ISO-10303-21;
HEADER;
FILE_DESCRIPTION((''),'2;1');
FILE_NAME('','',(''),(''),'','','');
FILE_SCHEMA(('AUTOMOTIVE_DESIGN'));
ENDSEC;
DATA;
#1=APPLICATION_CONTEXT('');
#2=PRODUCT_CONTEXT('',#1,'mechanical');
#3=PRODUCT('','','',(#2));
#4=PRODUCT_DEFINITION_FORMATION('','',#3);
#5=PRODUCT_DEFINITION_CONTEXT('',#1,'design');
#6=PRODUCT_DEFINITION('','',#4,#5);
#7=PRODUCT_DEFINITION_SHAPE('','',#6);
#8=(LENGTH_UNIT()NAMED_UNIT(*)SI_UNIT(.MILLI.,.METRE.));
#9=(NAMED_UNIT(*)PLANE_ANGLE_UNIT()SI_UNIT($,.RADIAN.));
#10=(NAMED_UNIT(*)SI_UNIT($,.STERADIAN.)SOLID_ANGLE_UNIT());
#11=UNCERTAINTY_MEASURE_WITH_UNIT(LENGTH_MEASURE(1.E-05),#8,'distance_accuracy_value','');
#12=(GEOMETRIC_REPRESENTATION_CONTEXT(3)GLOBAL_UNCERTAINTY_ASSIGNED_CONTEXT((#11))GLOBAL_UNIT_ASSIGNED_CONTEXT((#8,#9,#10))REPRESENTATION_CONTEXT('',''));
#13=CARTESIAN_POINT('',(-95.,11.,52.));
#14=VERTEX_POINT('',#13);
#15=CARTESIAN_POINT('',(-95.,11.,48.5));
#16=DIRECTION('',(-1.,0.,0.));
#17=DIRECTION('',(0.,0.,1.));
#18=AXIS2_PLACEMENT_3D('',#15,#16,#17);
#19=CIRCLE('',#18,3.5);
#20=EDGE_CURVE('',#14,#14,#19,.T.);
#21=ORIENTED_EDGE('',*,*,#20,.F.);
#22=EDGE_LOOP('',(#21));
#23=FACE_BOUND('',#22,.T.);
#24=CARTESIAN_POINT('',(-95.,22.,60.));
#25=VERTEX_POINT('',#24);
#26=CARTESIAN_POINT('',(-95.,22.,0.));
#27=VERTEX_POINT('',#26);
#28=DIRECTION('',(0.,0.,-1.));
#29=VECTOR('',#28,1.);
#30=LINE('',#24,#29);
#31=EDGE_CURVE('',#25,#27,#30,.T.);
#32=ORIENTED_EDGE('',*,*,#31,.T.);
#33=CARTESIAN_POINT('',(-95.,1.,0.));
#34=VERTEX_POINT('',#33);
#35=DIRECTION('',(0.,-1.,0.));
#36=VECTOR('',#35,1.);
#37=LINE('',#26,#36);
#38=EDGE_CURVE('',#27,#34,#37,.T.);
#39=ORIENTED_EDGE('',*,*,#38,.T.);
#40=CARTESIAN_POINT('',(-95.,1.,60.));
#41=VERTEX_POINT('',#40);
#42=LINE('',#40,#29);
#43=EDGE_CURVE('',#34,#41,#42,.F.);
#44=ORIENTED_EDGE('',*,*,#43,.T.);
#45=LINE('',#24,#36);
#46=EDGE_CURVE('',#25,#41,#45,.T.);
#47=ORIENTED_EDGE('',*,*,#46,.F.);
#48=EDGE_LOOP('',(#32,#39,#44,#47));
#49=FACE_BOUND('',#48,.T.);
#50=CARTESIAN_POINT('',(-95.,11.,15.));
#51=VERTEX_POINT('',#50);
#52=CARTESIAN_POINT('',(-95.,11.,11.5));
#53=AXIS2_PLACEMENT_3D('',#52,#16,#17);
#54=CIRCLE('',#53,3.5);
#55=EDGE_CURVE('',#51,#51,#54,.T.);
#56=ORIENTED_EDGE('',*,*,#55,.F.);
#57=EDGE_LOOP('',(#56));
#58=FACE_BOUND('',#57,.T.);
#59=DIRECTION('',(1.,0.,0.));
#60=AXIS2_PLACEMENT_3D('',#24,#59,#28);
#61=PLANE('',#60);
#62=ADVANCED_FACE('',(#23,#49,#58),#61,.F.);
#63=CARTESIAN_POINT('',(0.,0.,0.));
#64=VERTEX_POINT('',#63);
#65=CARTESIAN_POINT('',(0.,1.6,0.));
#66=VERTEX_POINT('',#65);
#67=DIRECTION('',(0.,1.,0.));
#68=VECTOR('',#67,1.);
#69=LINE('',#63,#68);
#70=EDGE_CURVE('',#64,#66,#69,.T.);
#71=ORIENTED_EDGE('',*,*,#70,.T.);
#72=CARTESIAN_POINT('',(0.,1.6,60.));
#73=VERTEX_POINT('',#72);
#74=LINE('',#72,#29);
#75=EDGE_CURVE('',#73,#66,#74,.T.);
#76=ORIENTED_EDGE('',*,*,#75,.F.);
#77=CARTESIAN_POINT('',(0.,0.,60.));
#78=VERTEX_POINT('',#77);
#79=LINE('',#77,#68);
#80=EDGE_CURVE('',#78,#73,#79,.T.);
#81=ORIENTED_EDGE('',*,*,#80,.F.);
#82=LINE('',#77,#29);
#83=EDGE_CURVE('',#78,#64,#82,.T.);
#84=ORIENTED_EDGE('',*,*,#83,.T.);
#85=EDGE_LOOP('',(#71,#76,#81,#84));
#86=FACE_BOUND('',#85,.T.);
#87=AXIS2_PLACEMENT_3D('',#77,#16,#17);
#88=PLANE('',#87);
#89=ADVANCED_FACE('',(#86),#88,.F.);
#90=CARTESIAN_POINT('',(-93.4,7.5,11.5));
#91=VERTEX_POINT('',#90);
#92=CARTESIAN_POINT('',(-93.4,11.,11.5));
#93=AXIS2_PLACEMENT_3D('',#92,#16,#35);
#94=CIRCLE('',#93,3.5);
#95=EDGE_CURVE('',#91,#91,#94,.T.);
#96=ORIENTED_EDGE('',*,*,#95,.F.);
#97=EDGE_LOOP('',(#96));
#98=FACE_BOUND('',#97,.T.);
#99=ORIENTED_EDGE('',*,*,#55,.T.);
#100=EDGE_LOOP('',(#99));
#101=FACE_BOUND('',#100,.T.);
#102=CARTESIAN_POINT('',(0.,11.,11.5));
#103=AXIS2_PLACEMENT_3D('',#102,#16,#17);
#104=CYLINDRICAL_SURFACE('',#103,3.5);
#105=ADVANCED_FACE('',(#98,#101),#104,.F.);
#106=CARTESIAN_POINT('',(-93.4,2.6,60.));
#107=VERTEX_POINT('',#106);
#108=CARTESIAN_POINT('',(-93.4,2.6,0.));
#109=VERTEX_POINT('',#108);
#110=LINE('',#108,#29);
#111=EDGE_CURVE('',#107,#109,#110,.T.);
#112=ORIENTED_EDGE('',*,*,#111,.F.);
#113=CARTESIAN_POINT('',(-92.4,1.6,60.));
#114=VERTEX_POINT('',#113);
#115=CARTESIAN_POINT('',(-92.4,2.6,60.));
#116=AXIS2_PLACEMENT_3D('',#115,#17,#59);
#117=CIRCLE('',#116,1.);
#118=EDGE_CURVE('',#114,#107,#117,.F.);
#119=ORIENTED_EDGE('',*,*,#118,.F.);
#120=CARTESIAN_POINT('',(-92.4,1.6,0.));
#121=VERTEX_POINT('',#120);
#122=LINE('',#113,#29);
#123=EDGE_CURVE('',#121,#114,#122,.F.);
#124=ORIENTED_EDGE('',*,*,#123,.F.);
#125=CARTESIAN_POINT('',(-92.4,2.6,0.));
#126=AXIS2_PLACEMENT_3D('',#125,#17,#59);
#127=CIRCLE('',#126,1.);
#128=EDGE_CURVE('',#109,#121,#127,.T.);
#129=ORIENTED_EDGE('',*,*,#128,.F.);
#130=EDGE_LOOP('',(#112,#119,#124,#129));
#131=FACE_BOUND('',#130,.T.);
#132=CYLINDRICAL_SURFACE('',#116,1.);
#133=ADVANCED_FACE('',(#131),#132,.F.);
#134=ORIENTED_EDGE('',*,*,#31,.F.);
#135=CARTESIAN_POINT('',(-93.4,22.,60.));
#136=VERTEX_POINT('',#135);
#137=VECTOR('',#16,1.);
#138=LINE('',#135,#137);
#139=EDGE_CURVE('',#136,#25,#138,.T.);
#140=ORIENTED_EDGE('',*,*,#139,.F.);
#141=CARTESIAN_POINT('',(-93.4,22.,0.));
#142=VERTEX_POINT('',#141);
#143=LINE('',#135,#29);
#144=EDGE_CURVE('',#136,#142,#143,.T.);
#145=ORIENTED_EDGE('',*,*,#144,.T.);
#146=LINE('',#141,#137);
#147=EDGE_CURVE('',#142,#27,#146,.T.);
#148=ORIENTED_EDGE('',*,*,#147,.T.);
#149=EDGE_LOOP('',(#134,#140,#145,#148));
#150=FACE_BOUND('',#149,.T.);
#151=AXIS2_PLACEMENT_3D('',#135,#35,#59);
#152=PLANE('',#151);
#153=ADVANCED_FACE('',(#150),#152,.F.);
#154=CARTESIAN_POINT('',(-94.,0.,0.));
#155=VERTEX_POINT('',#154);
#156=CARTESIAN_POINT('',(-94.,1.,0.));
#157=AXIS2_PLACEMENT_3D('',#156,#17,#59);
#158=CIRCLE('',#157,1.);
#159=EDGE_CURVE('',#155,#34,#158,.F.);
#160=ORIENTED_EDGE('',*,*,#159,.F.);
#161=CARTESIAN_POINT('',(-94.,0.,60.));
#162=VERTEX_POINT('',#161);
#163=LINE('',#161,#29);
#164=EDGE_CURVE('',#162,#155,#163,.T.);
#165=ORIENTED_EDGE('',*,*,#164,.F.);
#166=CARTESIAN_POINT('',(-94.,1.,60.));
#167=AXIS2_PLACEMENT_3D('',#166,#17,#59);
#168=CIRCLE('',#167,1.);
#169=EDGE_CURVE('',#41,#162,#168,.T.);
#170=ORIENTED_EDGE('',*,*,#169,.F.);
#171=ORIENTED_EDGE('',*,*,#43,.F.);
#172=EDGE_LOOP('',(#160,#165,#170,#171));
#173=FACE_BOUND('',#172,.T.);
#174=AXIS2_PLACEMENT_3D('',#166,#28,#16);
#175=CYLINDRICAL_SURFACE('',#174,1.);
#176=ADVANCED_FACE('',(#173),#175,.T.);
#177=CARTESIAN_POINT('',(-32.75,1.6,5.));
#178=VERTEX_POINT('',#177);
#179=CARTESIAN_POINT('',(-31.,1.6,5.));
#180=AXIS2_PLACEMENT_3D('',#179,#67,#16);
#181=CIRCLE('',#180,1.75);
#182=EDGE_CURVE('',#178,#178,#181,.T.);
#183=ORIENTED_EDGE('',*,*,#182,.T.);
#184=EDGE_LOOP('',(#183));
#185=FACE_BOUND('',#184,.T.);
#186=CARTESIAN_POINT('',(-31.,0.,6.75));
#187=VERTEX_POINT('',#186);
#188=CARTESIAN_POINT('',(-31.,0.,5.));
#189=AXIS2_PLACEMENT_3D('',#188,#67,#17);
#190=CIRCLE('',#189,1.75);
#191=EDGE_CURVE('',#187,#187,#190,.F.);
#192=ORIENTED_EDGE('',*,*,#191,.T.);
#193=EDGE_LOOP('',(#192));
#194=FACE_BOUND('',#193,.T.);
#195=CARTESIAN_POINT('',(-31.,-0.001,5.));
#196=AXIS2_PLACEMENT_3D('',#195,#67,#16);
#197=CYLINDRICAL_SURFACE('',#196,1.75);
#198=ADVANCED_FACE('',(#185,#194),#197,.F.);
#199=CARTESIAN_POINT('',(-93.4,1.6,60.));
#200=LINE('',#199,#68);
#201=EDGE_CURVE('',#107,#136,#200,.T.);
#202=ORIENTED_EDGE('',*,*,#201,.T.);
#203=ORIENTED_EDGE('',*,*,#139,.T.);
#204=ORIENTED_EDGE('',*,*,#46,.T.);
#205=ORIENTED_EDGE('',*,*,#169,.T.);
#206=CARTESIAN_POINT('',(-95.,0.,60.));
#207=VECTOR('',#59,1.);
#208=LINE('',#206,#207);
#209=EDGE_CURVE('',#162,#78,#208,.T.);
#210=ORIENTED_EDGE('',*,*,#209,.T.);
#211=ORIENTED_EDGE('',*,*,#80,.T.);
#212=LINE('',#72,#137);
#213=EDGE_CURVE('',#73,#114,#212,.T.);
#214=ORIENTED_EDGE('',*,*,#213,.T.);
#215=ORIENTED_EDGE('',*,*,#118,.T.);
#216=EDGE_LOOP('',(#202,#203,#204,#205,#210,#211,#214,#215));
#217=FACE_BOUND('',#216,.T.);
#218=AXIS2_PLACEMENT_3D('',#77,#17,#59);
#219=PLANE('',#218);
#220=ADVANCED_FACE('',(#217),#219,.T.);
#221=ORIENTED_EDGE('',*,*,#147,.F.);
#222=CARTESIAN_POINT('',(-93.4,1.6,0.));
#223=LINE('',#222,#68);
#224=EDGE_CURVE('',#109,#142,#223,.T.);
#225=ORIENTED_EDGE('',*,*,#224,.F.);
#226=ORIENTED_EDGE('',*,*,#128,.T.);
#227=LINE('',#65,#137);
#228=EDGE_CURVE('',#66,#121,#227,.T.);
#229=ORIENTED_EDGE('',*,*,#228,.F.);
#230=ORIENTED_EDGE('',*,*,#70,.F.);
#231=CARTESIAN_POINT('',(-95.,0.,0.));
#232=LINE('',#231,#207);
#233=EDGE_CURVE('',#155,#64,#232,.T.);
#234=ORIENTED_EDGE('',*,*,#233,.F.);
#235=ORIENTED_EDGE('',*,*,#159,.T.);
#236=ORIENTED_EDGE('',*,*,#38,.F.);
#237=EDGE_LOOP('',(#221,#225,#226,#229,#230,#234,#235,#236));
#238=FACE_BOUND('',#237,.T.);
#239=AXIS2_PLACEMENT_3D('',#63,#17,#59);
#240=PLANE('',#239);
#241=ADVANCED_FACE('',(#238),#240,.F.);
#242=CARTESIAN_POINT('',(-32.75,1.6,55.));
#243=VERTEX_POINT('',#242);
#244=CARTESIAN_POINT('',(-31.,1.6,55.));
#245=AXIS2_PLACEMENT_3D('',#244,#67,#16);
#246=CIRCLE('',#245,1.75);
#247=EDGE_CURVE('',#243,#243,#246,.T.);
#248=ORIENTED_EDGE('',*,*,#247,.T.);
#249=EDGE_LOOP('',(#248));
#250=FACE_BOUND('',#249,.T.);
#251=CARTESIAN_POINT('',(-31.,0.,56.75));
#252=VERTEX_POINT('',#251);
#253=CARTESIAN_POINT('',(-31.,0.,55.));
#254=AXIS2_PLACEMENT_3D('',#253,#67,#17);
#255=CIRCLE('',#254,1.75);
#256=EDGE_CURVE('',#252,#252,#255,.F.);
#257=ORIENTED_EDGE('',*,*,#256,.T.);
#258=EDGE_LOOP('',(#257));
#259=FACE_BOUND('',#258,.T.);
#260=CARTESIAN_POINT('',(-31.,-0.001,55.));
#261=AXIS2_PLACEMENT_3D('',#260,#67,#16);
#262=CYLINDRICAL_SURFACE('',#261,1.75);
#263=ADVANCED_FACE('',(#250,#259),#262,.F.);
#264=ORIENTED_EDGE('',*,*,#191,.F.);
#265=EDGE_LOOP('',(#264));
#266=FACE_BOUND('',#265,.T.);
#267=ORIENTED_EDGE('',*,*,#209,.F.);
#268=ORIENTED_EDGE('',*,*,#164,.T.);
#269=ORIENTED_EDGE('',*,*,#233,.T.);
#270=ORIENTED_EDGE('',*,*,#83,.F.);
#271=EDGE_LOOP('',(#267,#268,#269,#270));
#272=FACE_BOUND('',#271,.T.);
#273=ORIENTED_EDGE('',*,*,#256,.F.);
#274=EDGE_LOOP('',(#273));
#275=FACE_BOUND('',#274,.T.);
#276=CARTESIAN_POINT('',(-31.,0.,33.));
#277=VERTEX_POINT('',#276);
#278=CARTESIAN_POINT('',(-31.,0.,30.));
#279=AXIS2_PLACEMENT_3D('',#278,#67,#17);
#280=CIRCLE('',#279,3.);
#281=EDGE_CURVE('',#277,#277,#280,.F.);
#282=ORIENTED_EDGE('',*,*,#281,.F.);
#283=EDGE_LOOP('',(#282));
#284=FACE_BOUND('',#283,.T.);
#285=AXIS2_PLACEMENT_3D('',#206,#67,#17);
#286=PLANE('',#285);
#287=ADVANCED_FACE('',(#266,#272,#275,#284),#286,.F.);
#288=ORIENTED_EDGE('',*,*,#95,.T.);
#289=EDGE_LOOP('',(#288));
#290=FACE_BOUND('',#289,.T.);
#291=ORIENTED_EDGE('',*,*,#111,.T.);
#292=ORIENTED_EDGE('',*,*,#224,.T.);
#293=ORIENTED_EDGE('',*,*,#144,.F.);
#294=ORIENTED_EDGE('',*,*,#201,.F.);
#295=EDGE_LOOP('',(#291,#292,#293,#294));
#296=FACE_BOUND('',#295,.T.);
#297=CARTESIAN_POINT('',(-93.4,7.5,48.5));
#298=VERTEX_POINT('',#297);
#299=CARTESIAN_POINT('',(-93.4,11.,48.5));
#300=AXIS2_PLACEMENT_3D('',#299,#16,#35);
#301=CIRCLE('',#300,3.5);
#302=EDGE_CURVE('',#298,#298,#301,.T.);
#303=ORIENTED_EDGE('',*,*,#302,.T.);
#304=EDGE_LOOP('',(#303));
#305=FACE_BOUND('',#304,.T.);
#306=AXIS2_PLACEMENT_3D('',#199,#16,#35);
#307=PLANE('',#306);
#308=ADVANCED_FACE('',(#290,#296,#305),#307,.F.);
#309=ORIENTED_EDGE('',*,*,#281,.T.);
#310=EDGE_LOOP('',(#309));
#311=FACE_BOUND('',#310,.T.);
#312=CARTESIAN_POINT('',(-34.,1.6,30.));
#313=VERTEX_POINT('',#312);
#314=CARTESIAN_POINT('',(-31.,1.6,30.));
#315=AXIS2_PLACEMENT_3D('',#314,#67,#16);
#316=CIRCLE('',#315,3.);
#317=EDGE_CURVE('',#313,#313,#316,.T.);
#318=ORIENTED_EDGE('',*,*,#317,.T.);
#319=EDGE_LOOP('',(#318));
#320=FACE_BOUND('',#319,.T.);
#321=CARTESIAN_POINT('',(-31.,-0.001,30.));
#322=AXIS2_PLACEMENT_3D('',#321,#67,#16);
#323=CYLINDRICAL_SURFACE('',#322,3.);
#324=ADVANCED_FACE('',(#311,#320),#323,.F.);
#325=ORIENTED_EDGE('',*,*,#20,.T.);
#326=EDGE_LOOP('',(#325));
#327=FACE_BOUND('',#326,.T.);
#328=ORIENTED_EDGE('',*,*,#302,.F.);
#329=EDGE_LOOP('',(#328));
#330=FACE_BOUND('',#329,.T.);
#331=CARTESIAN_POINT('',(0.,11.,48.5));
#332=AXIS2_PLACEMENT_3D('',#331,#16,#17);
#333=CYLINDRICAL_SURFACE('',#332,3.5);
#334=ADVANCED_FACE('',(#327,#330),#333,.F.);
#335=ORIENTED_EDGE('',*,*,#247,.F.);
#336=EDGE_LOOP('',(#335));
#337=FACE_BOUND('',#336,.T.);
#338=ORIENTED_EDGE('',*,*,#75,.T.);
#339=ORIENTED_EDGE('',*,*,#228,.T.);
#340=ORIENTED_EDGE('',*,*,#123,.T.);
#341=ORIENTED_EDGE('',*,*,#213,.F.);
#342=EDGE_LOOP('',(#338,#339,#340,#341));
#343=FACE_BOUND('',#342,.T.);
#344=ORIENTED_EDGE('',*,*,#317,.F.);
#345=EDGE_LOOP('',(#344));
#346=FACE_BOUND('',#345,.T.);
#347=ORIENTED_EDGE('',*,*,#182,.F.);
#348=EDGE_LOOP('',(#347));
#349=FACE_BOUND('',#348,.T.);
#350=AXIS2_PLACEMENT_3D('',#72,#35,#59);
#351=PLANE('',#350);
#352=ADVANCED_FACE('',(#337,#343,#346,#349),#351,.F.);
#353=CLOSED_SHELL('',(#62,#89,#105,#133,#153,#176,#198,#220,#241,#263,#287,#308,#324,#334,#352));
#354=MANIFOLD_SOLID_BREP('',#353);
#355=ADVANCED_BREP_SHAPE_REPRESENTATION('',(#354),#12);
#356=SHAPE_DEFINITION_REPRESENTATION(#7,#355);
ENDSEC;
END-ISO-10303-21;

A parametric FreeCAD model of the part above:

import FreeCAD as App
import Part
import Sketcher
from FreeCAD import Vector
Q = App.Units.Quantity


def edges_at(feature, points):
    """Names of the edges that pass closest to the given points."""
    edges = feature.Shape.Edges
    near = lambda p: min(range(len(edges)), key=lambda i: edges[i].distToShape(Part.Vertex(*p))[0])
    return sorted({f"Edge{near(p) + 1}" for p in points})

doc = App.newDocument("Part")
body = doc.addObject("PartDesign::Body", "Body")

sketch1 = body.newObject("Sketcher::SketchObject", "Sketch")
sketch1.AttachmentSupport = (doc.getObject("XY_Plane"), [""])
sketch1.MapMode = "FlatFace"
sketch1.addGeometry(Part.LineSegment(Vector(-95, 22, 0), Vector(-95, 0, 0)), False)
sketch1.addGeometry(Part.LineSegment(Vector(-95, 0, 0), Vector(0, 0, 0)), False)
sketch1.addGeometry(Part.LineSegment(Vector(0, 0, 0), Vector(0, 1.6, 0)), False)
sketch1.addGeometry(Part.LineSegment(Vector(0, 1.6, 0), Vector(-93.4, 1.6, 0)), False)
sketch1.addGeometry(Part.LineSegment(Vector(-93.4, 1.6, 0), Vector(-93.4, 22, 0)), False)
sketch1.addGeometry(Part.LineSegment(Vector(-93.4, 22, 0), Vector(-95, 22, 0)), False)
sketch1.addConstraint(Sketcher.Constraint("Coincident", 0, 2, 1, 1))
sketch1.addConstraint(Sketcher.Constraint("Coincident", 1, 2, 2, 1))
sketch1.addConstraint(Sketcher.Constraint("Coincident", 2, 2, 3, 1))
sketch1.addConstraint(Sketcher.Constraint("Coincident", 3, 2, 4, 1))
sketch1.addConstraint(Sketcher.Constraint("Coincident", 4, 2, 5, 1))
sketch1.addConstraint(Sketcher.Constraint("Coincident", 5, 2, 0, 1))
sketch1.addConstraint(Sketcher.Constraint("Vertical", 0))
sketch1.addConstraint(Sketcher.Constraint("Horizontal", 1))
sketch1.addConstraint(Sketcher.Constraint("Vertical", 2))
sketch1.addConstraint(Sketcher.Constraint("Horizontal", 3))
sketch1.addConstraint(Sketcher.Constraint("Vertical", 4))
sketch1.addConstraint(Sketcher.Constraint("Horizontal", 5))
sketch1.addConstraint(Sketcher.Constraint("Coincident", 1, 2, -1, 1))
sketch1.addConstraint(Sketcher.Constraint("Equal", 5, 2))
sketch1.addConstraint(Sketcher.Constraint("DistanceX", 1, 1, 1, 2, Q("95 mm")))
sketch1.addConstraint(Sketcher.Constraint("DistanceY", 0, 2, 0, 1, Q("22 mm")))
sketch1.addConstraint(Sketcher.Constraint("DistanceX", 3, 2, 3, 1, Q("93.4 mm")))
pad1 = body.newObject("PartDesign::Pad", "Pad")
pad1.Profile = sketch1
pad1.Length = 60
doc.recompute()

fillet = body.newObject("PartDesign::Fillet", "Fillet")
fillet.Base = (pad1, edges_at(pad1, [(-95, 0, 30)]))
fillet.Radius = 1
doc.recompute()

fillet2 = body.newObject("PartDesign::Fillet", "Fillet001")
fillet2.Base = (fillet, edges_at(fillet, [(-93.4, 1.6, 30)]))
fillet2.Radius = 1

sketch2 = body.newObject("Sketcher::SketchObject", "Sketch001")
sketch2.AttachmentSupport = (doc.getObject("XZ_Plane"), [""])
sketch2.MapMode = "FlatFace"
sketch2.AttachmentOffset = App.Placement(Vector(0, 0, -1.6), App.Rotation())
sketch2.addGeometry(Part.Circle(Vector(-31, 5, 0), Vector(0, 0, 1), 1.8), False)
sketch2.addConstraint(Sketcher.Constraint("Diameter", 0, Q("3.5 mm")))
sketch2.addConstraint(Sketcher.Constraint("DistanceX", 0, 3, -1, 1, Q("31 mm")))
sketch2.addConstraint(Sketcher.Constraint("DistanceY", -1, 1, 0, 3, Q("5 mm")))
pocket1 = body.newObject("PartDesign::Pocket", "Pocket")
pocket1.Profile = sketch2
pocket1.Type = "UpToFirst"
pocket1.Reversed = True

sketch3 = body.newObject("Sketcher::SketchObject", "Sketch002")
sketch3.AttachmentSupport = (doc.getObject("XZ_Plane"), [""])
sketch3.MapMode = "FlatFace"
sketch3.AttachmentOffset = App.Placement(Vector(0, 0, -1.6), App.Rotation())
sketch3.addGeometry(Part.Circle(Vector(-31, 30, 0), Vector(0, 0, 1), 3), False)
sketch3.addConstraint(Sketcher.Constraint("Diameter", 0, Q("6 mm")))
sketch3.addConstraint(Sketcher.Constraint("DistanceX", 0, 3, -1, 1, Q("31 mm")))
sketch3.addConstraint(Sketcher.Constraint("DistanceY", -1, 1, 0, 3, Q("30 mm")))
pocket2 = body.newObject("PartDesign::Pocket", "Pocket001")
pocket2.Profile = sketch3
pocket2.Type = "UpToFirst"
pocket2.Reversed = True

sketch4 = body.newObject("Sketcher::SketchObject", "Sketch003")
sketch4.AttachmentSupport = (doc.getObject("XZ_Plane"), [""])
sketch4.MapMode = "FlatFace"
sketch4.AttachmentOffset = App.Placement(Vector(0, 0, -1.6), App.Rotation())
sketch4.addGeometry(Part.Circle(Vector(-31, 55, 0), Vector(0, 0, 1), 1.8), False)
sketch4.addConstraint(Sketcher.Constraint("Diameter", 0, Q("3.5 mm")))
sketch4.addConstraint(Sketcher.Constraint("DistanceX", 0, 3, -1, 1, Q("31 mm")))
sketch4.addConstraint(Sketcher.Constraint("DistanceY", -1, 1, 0, 3, Q("55 mm")))
pocket3 = body.newObject("PartDesign::Pocket", "Pocket002")
pocket3.Profile = sketch4
pocket3.Type = "UpToFirst"
pocket3.Reversed = True

sketch5 = body.newObject("Sketcher::SketchObject", "Sketch004")
sketch5.AttachmentSupport = (doc.getObject("YZ_Plane"), [""])
sketch5.MapMode = "FlatFace"
sketch5.AttachmentOffset = App.Placement(Vector(0, 0, -95), App.Rotation())
sketch5.addGeometry(Part.Circle(Vector(11, 11.5, 0), Vector(0, 0, 1), 3.5), False)
sketch5.addGeometry(Part.Circle(Vector(11, 48.5, 0), Vector(0, 0, 1), 3.5), False)
sketch5.addConstraint(Sketcher.Constraint("Equal", 0, 1))
sketch5.addConstraint(Sketcher.Constraint("Vertical", 0, 3, 1, 3))
sketch5.addConstraint(Sketcher.Constraint("Diameter", 0, Q("7 mm")))
sketch5.addConstraint(Sketcher.Constraint("DistanceX", -1, 1, 0, 3, Q("11 mm")))
sketch5.addConstraint(Sketcher.Constraint("DistanceY", 0, 3, 1, 3, Q("37 mm")))
sketch5.addConstraint(Sketcher.Constraint("DistanceY", -1, 1, 0, 3, Q("11.5 mm")))
pocket4 = body.newObject("PartDesign::Pocket", "Pocket003")
pocket4.Profile = sketch5
pocket4.Type = "ThroughAll"
pocket4.Reversed = True

doc.recompute()
